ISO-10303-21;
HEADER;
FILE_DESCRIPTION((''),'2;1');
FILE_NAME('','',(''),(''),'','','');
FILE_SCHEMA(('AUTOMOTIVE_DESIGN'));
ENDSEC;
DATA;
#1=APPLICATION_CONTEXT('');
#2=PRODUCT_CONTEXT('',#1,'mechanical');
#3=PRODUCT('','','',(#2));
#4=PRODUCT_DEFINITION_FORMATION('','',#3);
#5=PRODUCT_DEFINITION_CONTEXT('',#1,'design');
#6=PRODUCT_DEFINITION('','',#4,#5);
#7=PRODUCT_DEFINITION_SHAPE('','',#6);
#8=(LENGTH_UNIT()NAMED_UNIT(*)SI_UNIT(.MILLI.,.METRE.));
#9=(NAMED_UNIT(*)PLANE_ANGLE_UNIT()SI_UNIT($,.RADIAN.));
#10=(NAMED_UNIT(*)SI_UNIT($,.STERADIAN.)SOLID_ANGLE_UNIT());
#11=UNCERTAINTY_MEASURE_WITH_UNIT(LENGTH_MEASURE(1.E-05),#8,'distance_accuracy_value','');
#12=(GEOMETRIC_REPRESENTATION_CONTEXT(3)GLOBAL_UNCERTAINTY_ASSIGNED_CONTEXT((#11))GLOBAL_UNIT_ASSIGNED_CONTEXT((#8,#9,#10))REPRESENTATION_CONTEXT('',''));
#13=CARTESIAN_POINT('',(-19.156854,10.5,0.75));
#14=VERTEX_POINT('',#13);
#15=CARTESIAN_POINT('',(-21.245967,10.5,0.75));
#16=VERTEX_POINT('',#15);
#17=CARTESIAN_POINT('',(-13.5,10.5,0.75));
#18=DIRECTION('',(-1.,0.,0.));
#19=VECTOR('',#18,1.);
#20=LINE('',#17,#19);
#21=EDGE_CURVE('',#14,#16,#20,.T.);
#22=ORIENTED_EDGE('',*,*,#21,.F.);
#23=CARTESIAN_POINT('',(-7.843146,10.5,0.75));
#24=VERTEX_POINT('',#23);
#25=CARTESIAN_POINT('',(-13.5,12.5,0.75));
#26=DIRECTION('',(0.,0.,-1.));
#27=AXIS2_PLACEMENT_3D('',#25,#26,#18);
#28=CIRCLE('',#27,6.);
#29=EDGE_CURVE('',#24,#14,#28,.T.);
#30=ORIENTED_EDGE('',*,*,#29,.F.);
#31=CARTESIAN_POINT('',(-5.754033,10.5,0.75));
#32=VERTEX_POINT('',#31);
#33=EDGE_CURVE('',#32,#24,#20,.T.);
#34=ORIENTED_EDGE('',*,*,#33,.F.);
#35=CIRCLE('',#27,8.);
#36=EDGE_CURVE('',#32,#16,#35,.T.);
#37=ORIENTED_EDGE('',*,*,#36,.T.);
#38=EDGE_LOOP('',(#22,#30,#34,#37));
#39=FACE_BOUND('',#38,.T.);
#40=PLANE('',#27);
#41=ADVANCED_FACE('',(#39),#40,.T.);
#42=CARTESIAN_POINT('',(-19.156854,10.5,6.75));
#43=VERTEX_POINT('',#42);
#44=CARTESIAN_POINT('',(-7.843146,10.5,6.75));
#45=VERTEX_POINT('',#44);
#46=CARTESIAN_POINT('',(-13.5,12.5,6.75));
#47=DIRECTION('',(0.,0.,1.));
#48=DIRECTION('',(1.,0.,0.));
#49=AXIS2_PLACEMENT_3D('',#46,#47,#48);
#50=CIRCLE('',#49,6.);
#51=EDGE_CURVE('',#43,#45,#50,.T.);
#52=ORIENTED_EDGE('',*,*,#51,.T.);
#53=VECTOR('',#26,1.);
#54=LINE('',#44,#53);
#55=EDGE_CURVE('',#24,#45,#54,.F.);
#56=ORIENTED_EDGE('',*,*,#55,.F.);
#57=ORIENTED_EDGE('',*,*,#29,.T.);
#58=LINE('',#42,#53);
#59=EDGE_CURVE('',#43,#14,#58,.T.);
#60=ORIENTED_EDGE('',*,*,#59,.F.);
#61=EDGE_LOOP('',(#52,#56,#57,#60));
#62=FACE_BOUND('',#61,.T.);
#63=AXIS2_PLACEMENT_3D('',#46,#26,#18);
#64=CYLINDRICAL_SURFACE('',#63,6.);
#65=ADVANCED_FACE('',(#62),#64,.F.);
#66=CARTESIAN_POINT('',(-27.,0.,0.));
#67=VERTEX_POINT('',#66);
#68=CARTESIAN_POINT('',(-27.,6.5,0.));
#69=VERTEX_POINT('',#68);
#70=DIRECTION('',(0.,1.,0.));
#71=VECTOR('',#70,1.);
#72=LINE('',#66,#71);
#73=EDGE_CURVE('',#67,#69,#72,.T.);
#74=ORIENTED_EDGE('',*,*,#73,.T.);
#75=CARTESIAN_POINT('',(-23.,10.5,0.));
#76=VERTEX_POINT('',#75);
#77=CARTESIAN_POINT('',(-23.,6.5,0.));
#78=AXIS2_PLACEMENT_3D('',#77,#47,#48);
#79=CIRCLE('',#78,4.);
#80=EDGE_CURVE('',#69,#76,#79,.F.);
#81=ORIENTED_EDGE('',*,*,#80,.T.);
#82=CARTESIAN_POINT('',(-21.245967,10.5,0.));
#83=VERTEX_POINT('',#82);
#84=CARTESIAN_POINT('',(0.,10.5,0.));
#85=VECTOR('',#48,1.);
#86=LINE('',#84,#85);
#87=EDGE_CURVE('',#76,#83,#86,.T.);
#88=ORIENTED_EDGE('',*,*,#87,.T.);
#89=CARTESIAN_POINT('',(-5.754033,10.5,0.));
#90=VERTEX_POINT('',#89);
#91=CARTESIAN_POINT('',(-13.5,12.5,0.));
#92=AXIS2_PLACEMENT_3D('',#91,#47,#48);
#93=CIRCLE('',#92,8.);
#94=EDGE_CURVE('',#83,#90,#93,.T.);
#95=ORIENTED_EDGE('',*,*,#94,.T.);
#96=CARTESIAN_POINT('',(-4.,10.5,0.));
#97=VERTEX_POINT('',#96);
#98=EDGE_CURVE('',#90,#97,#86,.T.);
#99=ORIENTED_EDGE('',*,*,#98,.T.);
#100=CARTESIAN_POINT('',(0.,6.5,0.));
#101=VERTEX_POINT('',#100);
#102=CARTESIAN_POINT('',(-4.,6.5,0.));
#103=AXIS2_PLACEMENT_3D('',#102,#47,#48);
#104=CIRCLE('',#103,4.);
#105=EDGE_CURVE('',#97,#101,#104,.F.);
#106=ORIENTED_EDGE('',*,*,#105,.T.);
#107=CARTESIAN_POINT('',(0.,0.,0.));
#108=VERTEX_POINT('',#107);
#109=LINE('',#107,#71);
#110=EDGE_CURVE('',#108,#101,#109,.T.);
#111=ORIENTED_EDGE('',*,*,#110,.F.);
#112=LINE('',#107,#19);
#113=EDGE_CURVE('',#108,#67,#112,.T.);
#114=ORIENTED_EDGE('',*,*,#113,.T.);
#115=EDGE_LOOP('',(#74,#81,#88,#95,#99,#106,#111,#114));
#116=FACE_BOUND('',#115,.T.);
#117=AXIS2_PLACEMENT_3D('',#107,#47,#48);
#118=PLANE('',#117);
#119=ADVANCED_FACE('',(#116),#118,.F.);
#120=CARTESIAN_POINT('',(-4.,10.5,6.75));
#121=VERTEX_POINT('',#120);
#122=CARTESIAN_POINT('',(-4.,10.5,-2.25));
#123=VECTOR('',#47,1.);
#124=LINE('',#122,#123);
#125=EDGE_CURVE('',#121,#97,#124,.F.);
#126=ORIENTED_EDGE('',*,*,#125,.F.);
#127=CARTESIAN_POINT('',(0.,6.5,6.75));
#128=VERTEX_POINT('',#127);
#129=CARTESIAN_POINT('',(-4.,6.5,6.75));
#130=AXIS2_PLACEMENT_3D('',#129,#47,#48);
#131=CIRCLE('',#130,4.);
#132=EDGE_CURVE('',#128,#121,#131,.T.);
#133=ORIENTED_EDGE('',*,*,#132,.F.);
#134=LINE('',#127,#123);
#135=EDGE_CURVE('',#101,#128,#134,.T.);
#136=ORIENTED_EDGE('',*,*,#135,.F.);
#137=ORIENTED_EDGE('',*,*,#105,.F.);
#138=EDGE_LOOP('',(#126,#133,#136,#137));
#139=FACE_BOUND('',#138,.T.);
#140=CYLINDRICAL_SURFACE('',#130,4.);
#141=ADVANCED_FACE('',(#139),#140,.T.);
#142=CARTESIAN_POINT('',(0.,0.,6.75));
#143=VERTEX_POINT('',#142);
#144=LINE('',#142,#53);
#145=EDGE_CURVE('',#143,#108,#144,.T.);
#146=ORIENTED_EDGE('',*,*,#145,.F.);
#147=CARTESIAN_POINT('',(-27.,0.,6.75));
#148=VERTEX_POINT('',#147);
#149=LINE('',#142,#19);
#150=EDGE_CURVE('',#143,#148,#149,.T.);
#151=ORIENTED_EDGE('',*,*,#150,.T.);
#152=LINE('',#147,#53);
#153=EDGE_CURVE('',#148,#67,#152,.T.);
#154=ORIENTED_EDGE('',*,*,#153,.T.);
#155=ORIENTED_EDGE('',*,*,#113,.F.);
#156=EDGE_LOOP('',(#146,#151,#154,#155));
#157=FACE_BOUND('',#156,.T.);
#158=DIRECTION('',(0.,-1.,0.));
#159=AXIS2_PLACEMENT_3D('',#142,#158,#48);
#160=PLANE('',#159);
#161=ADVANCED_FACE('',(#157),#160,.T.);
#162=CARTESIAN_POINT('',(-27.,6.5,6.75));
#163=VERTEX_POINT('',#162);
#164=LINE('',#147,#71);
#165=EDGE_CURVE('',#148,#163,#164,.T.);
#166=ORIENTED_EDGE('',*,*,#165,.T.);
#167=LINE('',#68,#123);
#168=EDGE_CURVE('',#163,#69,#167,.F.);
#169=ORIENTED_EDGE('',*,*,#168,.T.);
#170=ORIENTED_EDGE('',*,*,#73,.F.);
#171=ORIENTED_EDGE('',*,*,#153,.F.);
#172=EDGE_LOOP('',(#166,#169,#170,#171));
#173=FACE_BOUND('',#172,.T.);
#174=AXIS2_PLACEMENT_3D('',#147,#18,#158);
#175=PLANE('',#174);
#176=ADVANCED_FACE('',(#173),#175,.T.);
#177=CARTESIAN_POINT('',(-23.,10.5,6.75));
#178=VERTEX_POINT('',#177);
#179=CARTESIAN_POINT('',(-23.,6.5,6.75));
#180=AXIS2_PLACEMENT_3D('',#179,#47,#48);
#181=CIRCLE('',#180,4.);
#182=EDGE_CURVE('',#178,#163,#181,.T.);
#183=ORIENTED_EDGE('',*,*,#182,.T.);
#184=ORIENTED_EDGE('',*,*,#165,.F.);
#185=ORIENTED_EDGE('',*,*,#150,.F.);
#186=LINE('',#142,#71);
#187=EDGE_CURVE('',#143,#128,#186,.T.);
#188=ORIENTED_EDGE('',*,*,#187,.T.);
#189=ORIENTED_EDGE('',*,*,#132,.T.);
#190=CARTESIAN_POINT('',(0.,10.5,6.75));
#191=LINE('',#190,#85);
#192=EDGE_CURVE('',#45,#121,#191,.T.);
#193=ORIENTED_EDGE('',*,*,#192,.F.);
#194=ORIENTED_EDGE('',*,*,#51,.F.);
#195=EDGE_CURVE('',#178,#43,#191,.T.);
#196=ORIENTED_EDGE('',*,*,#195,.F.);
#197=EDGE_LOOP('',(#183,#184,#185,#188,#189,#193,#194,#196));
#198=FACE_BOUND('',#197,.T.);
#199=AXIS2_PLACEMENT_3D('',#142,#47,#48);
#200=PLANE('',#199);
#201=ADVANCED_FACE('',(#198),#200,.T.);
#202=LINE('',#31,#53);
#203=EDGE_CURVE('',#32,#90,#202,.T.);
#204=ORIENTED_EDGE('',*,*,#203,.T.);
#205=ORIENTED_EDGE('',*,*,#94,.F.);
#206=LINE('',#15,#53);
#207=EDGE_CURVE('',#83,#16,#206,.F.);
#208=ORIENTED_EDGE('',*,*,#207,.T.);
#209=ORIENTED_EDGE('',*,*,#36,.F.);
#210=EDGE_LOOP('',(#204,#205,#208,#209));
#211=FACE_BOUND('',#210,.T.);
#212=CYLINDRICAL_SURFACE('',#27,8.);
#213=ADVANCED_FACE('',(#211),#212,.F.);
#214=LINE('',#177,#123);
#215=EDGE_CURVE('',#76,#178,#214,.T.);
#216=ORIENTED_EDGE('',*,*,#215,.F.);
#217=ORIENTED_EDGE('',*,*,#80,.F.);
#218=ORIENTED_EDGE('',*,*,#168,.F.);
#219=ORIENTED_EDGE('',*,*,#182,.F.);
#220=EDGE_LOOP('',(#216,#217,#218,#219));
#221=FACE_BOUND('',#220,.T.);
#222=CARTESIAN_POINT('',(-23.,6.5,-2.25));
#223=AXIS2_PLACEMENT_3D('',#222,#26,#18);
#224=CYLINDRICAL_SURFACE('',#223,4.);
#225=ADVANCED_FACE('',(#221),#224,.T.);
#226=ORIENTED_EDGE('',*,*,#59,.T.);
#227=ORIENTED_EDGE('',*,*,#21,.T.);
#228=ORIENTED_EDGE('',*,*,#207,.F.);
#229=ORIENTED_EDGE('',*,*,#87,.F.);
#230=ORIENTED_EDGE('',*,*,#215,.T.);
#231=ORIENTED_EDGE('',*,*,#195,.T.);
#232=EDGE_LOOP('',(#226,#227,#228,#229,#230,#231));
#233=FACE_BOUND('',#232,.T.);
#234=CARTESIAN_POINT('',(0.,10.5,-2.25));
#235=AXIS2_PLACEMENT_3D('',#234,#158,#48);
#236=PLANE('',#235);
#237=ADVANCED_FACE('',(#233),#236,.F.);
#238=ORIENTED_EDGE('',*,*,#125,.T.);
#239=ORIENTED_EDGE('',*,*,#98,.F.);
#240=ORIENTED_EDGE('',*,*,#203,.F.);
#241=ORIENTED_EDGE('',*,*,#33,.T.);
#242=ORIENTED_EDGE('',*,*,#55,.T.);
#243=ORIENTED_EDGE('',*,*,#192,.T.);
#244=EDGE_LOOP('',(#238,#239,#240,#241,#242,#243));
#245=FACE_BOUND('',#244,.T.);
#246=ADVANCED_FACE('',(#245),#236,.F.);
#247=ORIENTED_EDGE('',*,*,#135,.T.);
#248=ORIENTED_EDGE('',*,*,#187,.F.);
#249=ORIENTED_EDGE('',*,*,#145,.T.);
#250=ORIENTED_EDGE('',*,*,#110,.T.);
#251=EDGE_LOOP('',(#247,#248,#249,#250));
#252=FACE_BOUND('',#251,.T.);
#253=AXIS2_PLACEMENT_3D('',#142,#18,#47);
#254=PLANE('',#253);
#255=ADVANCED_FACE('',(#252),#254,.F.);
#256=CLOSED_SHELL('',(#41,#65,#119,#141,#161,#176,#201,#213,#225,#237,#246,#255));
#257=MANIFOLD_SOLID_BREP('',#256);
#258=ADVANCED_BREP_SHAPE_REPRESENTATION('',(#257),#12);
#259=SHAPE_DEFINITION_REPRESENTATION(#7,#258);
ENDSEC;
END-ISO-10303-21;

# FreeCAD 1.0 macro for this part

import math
import FreeCAD as App
import Part
import Sketcher

V = App.Vector
Q = App.Units.Quantity


def edges_at(feature, points):
    """Names of the edges that pass closest to the given points."""
    edges = feature.Shape.Edges
    near = lambda p: min(range(len(edges)), key=lambda i: edges[i].distToShape(Part.Vertex(*p))[0])
    return sorted({f"Edge{near(p) + 1}" for p in points})


def add_polygon(sketch, points):
    """Adds a closed chain of lines whose ends are joined by coincident constraints."""
    first, n = sketch.GeometryCount, len(points)
    for a, b in zip(points, points[1:] + points[:1]):
        sketch.addGeometry(Part.LineSegment(App.Vector(*a, 0), App.Vector(*b, 0)), False)
    for i in range(n):
        sketch.addConstraint(Sketcher.Constraint("Coincident", first + i, 2, first + (i + 1) % n, 1))

doc = App.newDocument("Part")
body = doc.addObject("PartDesign::Body", "Body")

# Sketch on XY plane
sketch1 = body.newObject("Sketcher::SketchObject", "Sketch")
sketch1.AttachmentSupport = (doc.getObject("XY_Plane"), [""])
sketch1.MapMode = "FlatFace"
sketch1.addGeometry(Part.LineSegment(V(-27, 0, 0), V(0, 0, 0)), False)
sketch1.addGeometry(Part.LineSegment(V(0, 0, 0), V(0, 12, 0)), False)
sketch1.addGeometry(Part.LineSegment(V(0, 12, 0), V(-8, 12, 0)), False)
sketch1.addGeometry(Part.ArcOfCircle(Part.Circle(V(-14, 12, 0), V(0, 0, 1), 6), math.radians(180), math.radians(360)), False)
sketch1.addGeometry(Part.LineSegment(V(-20, 12, 0), V(-27, 12, 0)), False)
sketch1.addGeometry(Part.LineSegment(V(-27, 12, 0), V(-27, 0, 0)), False)
sketch1.addConstraint(Sketcher.Constraint("Coincident", 0, 2, 1, 1))
sketch1.addConstraint(Sketcher.Constraint("Coincident", 1, 2, 2, 1))
sketch1.addConstraint(Sketcher.Constraint("Coincident", 2, 2, 3, 2))
sketch1.addConstraint(Sketcher.Constraint("Coincident", 3, 1, 4, 1))
sketch1.addConstraint(Sketcher.Constraint("Coincident", 4, 2, 5, 1))
sketch1.addConstraint(Sketcher.Constraint("Coincident", 5, 2, 0, 1))
sketch1.addConstraint(Sketcher.Constraint("Horizontal", 0))
sketch1.addConstraint(Sketcher.Constraint("Vertical", 1))
sketch1.addConstraint(Sketcher.Constraint("Horizontal", 2))
sketch1.addConstraint(Sketcher.Constraint("Horizontal", 4))
sketch1.addConstraint(Sketcher.Constraint("Vertical", 5))
sketch1.addConstraint(Sketcher.Constraint("Coincident", 0, 2, -1, 1))
sketch1.addConstraint(Sketcher.Constraint("Horizontal", 3, 3, 1, 2))
sketch1.addConstraint(Sketcher.Constraint("Horizontal", 2, 2, 3, 1))
sketch1.addConstraint(Sketcher.Constraint("Equal", 2, 4))
sketch1.addConstraint(Sketcher.Constraint("Radius", 3, Q("6 mm")))
sketch1.addConstraint(Sketcher.Constraint("DistanceX", 0, 1, 0, 2, Q("27 mm")))
sketch1.addConstraint(Sketcher.Constraint("DistanceY", 1, 1, 1, 2, Q("12.5 mm")))
pad1 = body.newObject("PartDesign::Pad", "Pad")
pad1.Profile = sketch1
pad1.Length = 6.75

# Sketch on XY plane
sketch2 = body.newObject("Sketcher::SketchObject", "Sketch001")
sketch2.AttachmentSupport = (doc.getObject("XY_Plane"), [""])
sketch2.MapMode = "FlatFace"
sketch2.addGeometry(Part.Circle(V(-14, 12, 0), V(0, 0, 1), 8), False)
sketch2.addConstraint(Sketcher.Constraint("Diameter", 0, Q("16 mm")))
sketch2.addConstraint(Sketcher.Constraint("DistanceX", 0, 3, -1, 1, Q("13.5 mm")))
sketch2.addConstraint(Sketcher.Constraint("DistanceY", -1, 1, 0, 3, Q("12.5 mm")))
pocket1 = body.newObject("PartDesign::Pocket", "Pocket")
pocket1.Profile = sketch2
pocket1.Length = 0.75
pocket1.Reversed = True

# Sketch on XY plane
sketch3 = body.newObject("Sketcher::SketchObject", "Sketch002")
sketch3.AttachmentSupport = (doc.getObject("XY_Plane"), [""])
sketch3.MapMode = "FlatFace"
sketch3.AttachmentOffset = App.Placement(V(0, 0, 6.75), App.Rotation())
add_polygon(sketch3, [(-27, 12.5), (-27, 10.5), (0, 10.5), (0, 12.5)])  # lines 0-3
sketch3.addConstraint(Sketcher.Constraint("Vertical", 0))
sketch3.addConstraint(Sketcher.Constraint("Horizontal", 1))
sketch3.addConstraint(Sketcher.Constraint("Vertical", 2))
sketch3.addConstraint(Sketcher.Constraint("Horizontal", 3))
sketch3.addConstraint(Sketcher.Constraint("PointOnObject", 1, 2, -2))
sketch3.addConstraint(Sketcher.Constraint("DistanceX", 1, 1, 1, 2, Q("27 mm")))
sketch3.addConstraint(Sketcher.Constraint("DistanceY", 0, 2, 0, 1, Q("2 mm")))
sketch3.addConstraint(Sketcher.Constraint("DistanceY", -1, 1, 0, 2, Q("10.5 mm")))
pocket2 = body.newObject("PartDesign::Pocket", "Pocket001")
pocket2.Profile = sketch3
pocket2.Length = 9
doc.recompute()

fillet = body.newObject("PartDesign::Fillet", "Fillet")
fillet.Base = (pocket2, edges_at(pocket2, [(-27, 10.5, 3.375), (0, 10.5, 3.375)]))
fillet.Radius = 4

doc.recompute()
